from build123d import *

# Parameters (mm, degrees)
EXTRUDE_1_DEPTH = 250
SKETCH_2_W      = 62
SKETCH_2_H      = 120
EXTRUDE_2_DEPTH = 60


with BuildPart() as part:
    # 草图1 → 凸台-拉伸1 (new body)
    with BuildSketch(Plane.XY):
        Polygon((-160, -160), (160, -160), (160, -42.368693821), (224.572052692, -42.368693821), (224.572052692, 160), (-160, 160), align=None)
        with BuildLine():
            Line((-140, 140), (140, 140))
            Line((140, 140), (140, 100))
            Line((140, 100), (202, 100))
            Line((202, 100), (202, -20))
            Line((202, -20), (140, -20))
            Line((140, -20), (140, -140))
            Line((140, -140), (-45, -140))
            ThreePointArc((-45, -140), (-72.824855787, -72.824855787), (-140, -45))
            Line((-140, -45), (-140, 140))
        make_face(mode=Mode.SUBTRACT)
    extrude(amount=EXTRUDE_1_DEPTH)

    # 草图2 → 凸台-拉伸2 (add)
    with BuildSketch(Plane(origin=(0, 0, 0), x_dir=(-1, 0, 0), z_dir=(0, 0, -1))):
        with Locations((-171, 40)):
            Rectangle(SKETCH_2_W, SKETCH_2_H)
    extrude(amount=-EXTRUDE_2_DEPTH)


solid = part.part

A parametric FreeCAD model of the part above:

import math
import FreeCAD as App
import Part
import Sketcher


def add_polygon(sketch, points):
    """Adds a closed chain of lines whose ends are joined by coincident constraints."""
    first, n = sketch.GeometryCount, len(points)
    for a, b in zip(points, points[1:] + points[:1]):
        sketch.addGeometry(Part.LineSegment(App.Vector(*a, 0), App.Vector(*b, 0)), False)
    for i in range(n):
        sketch.addConstraint(Sketcher.Constraint("Coincident", first + i, 2, first + (i + 1) % n, 1))

doc = App.newDocument("Part")
params = doc.addObject("Spreadsheet::Sheet", "Params")
for row, (alias, value) in enumerate([
    ("sketch1_radius", "95 mm"),
    ("sketch1_width", "320 mm"),
    ("sketch1_width2", "280 mm"),
    ("sketch1_width3", "62 mm"),
    ("sketch1_height", "40 mm"),
    ("pad1_length", "250 mm"),
    ("sketch2_width", "62 mm"),
    ("sketch2_height", "120 mm"),
    ("pad2_length", "60 mm"),
], start=1):
    params.set(f"A{row}", alias)
    params.set(f"B{row}", "=" + value)
    params.setAlias(f"B{row}", alias)

body = doc.addObject("PartDesign::Body", "Body")

# Sketch on XY plane
sketch1 = body.newObject("Sketcher::SketchObject", "Sketch")
sketch1.AttachmentSupport = (doc.getObject("XY_Plane"), [""])
sketch1.MapMode = "FlatFace"
add_polygon(sketch1, [(-160, -160), (160, -160), (160, -42), (225, -42), (225, 160), (-160, 160)])  # lines 0-5
sketch1.addGeometry(Part.LineSegment(App.Vector(-140, -45, 0), App.Vector(-140, 140, 0)), False)  # 6
sketch1.addGeometry(Part.LineSegment(App.Vector(-140, 140, 0), App.Vector(140, 140, 0)), False)  # 7
sketch1.addGeometry(Part.LineSegment(App.Vector(140, 140, 0), App.Vector(140, 100, 0)), False)  # 8
sketch1.addGeometry(Part.LineSegment(App.Vector(140, 100, 0), App.Vector(202, 100, 0)), False)  # 9
sketch1.addGeometry(Part.LineSegment(App.Vector(202, 100, 0), App.Vector(202, -20, 0)), False)  # 10
sketch1.addGeometry(Part.LineSegment(App.Vector(202, -20, 0), App.Vector(140, -20, 0)), False)  # 11
sketch1.addGeometry(Part.LineSegment(App.Vector(140, -20, 0), App.Vector(140, -140, 0)), False)  # 12
sketch1.addGeometry(Part.LineSegment(App.Vector(140, -140, 0), App.Vector(-45, -140, 0)), False)  # 13
sketch1.addGeometry(Part.ArcOfCircle(Part.Circle(App.Vector(-140, -140, 0), App.Vector(0, 0, 1), 95), math.radians(0), math.radians(90)), False)  # 14
sketch1.addConstraint([
    Sketcher.Constraint("Coincident", 6, 2, 7, 1),
    Sketcher.Constraint("Coincident", 7, 2, 8, 1),
    Sketcher.Constraint("Coincident", 8, 2, 9, 1),
    Sketcher.Constraint("Coincident", 9, 2, 10, 1),
    Sketcher.Constraint("Coincident", 10, 2, 11, 1),
    Sketcher.Constraint("Coincident", 11, 2, 12, 1),
    Sketcher.Constraint("Coincident", 12, 2, 13, 1),
    Sketcher.Constraint("Coincident", 13, 2, 14, 1),
    Sketcher.Constraint("Coincident", 14, 2, 6, 1),
    Sketcher.Constraint("Horizontal", 0),
    Sketcher.Constraint("Vertical", 1),
    Sketcher.Constraint("Horizontal", 2),
    Sketcher.Constraint("Vertical", 3),
    Sketcher.Constraint("Horizontal", 4),
    Sketcher.Constraint("Vertical", 5),
    Sketcher.Constraint("Vertical", 6),
    Sketcher.Constraint("Horizontal", 7),
    Sketcher.Constraint("Vertical", 8),
    Sketcher.Constraint("Horizontal", 9),
    Sketcher.Constraint("Vertical", 10),
    Sketcher.Constraint("Horizontal", 11),
    Sketcher.Constraint("Vertical", 12),
    Sketcher.Constraint("Horizontal", 13),
    Sketcher.Constraint("Symmetric", 0, 2, 4, 2, -1, 1),
    Sketcher.Constraint("Symmetric", 6, 2, 12, 2, -1, 1),
    Sketcher.Constraint("Horizontal", 14, 3, 12, 2),
    Sketcher.Constraint("Vertical", 14, 3, 6, 2),
    Sketcher.Constraint("Vertical", 8, 2, 11, 2),
    Sketcher.Constraint("Equal", 0, 5),
    Sketcher.Constraint("Equal", 13, 6),
    Sketcher.Constraint("Equal", 10, 12),
    Sketcher.Constraint("Radius", 14, 95.0),
    Sketcher.Constraint("DistanceX", 0, 1, 0, 2, 320.0),
    Sketcher.Constraint("DistanceX", 7, 1, 7, 2, 280.0),
    Sketcher.Constraint("DistanceX", 9, 1, 9, 2, 62.0),
    Sketcher.Constraint("DistanceY", 8, 2, 8, 1, 40.0),
    Sketcher.Constraint("DistanceX", 2, 1, 2, 2, 64.572053),
    Sketcher.Constraint("DistanceY", 1, 1, 1, 2, 117.631306),
])
sketch1.setExpression("Constraints[37]", "Params.sketch1_radius")
sketch1.setExpression("Constraints[38]", "Params.sketch1_width")
sketch1.setExpression("Constraints[39]", "Params.sketch1_width2")
sketch1.setExpression("Constraints[40]", "Params.sketch1_width3")
sketch1.setExpression("Constraints[41]", "Params.sketch1_height")
pad1 = body.newObject("PartDesign::Pad", "Pad")
pad1.Profile = sketch1
pad1.setExpression("Length", "Params.pad1_length")

# Sketch on XY plane
sketch2 = body.newObject("Sketcher::SketchObject", "Sketch001")
sketch2.AttachmentSupport = (doc.getObject("XY_Plane"), [""])
sketch2.MapMode = "FlatFace"
add_polygon(sketch2, [(202, 100), (202, -20), (140, -20), (140, 100)])  # lines 0-3
sketch2.addConstraint([
    Sketcher.Constraint("Vertical", 0),
    Sketcher.Constraint("Horizontal", 1),
    Sketcher.Constraint("Vertical", 2),
    Sketcher.Constraint("Horizontal", 3),
    Sketcher.Constraint("DistanceX", 1, 2, 1, 1, 62.0),
    Sketcher.Constraint("DistanceY", 0, 2, 0, 1, 120.0),
    Sketcher.Constraint("DistanceX", -1, 1, 0, 2, 202.0),
    Sketcher.Constraint("DistanceY", 0, 2, -1, 1, 20.0),
])
sketch2.setExpression("Constraints[8]", "Params.sketch2_width")
sketch2.setExpression("Constraints[9]", "Params.sketch2_height")
pad2 = body.newObject("PartDesign::Pad", "Pad001")
pad2.Profile = sketch2
pad2.setExpression("Length", "Params.pad2_length")

doc.recompute()
